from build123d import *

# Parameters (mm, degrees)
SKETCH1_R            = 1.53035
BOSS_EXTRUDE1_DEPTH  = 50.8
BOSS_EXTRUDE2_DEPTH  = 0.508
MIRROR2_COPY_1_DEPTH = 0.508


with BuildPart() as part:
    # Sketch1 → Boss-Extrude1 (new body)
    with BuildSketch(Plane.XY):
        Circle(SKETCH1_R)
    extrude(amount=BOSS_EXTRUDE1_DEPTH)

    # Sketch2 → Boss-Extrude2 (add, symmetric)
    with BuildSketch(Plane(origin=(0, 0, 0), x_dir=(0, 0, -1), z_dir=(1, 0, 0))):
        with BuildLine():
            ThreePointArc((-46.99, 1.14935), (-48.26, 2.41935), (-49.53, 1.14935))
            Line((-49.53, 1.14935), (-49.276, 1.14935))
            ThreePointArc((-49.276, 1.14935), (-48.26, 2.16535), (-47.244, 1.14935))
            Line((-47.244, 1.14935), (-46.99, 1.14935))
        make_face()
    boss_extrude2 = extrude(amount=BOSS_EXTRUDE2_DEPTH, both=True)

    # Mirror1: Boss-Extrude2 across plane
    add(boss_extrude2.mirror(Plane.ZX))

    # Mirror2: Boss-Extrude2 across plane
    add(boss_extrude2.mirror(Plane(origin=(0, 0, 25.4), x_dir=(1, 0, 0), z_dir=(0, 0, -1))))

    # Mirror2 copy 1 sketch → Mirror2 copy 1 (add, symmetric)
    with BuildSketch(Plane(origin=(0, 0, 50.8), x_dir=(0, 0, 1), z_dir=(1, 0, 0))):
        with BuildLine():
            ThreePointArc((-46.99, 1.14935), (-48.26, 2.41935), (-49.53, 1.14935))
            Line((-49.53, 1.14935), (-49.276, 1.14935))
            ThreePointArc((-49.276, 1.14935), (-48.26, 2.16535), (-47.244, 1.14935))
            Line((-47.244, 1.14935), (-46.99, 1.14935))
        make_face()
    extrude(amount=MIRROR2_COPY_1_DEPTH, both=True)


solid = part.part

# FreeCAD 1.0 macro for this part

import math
import FreeCAD as App
import Part
import Sketcher

V = App.Vector
Q = App.Units.Quantity

doc = App.newDocument("Part")
body = doc.addObject("PartDesign::Body", "Body")

# Sketch on XY plane
sketch1 = body.newObject("Sketcher::SketchObject", "Sketch")
sketch1.AttachmentSupport = (doc.getObject("XY_Plane"), [""])
sketch1.MapMode = "FlatFace"
sketch1.addGeometry(Part.Circle(V(0, 0, 0), V(0, 0, 1), 1.5), False)
sketch1.addConstraint([
    Sketcher.Constraint("Coincident", 0, 3, -1, 1),
    Sketcher.Constraint("Diameter", 0, Q("0.1205 in")),
])
pad1 = body.newObject("PartDesign::Pad", "Pad")
pad1.Profile = sketch1
pad1.Length = Q("2 in")

# Sketch on YZ plane
sketch2 = body.newObject("Sketcher::SketchObject", "Sketch001")
sketch2.AttachmentSupport = (doc.getObject("YZ_Plane"), [""])
sketch2.MapMode = "FlatFace"
sketch2.addGeometry([
    Part.ArcOfCircle(Part.Circle(V(1.15, 48.26, 0), V(0, 0, 1), 1.27), math.radians(-90), math.radians(90)),
    Part.LineSegment(V(1.15, 49.53, 0), V(1.15, 49.28, 0)),
    Part.ArcOfCircle(Part.Circle(V(1.15, 48.26, 0), V(0, 0, 1), 1.02), math.radians(-90), math.radians(90)),
    Part.LineSegment(V(1.15, 47.24, 0), V(1.15, 46.99, 0)),
], False)
sketch2.addConstraint([
    Sketcher.Constraint("Coincident", 0, 2, 1, 1),
    Sketcher.Constraint("Coincident", 1, 2, 2, 2),
    Sketcher.Constraint("Coincident", 2, 1, 3, 1),
    Sketcher.Constraint("Coincident", 3, 2, 0, 1),
    Sketcher.Constraint("Vertical", 1),
    Sketcher.Constraint("Vertical", 3),
    Sketcher.Constraint("Coincident", 2, 3, 0, 3),
    Sketcher.Constraint("Vertical", 2, 3, 0, 2),
    Sketcher.Constraint("Vertical", 1, 2, 2, 1),
    Sketcher.Constraint("Radius", 0, Q("0.05 in")),
    Sketcher.Constraint("Radius", 2, Q("0.04 in")),
    Sketcher.Constraint("DistanceY", -1, 1, 0, 3, Q("1.9 in")),
    Sketcher.Constraint("DistanceX", -1, 1, 0, 3, 1.14935),
])
pad2 = body.newObject("PartDesign::Pad", "Pad001")
pad2.Profile = sketch2
pad2.Length = Q("0.04 in")
pad2.Midplane = True
doc.recompute()

mirrored = body.newObject("PartDesign::Mirrored", "Mirrored")
mirrored.Originals = [pad2]
mirrored.MirrorPlane = (doc.getObject("XZ_Plane"), [""])
body.Tip = mirrored
doc.recompute()

datumplane = body.newObject("PartDesign::Plane", "DatumPlane")
datumplane.AttachmentSupport = (doc.getObject("XY_Plane"), [""])
datumplane.MapMode = "FlatFace"
datumplane.AttachmentOffset = App.Placement(V(0, 0, 1 * 25.4), App.Rotation())
mirrored2 = body.newObject("PartDesign::Mirrored", "Mirrored001")
mirrored2.Originals = [pad2]
mirrored2.MirrorPlane = (datumplane, [""])
body.Tip = mirrored2

# Sketch on YZ plane
sketch3 = body.newObject("Sketcher::SketchObject", "Sketch002")
sketch3.AttachmentSupport = (doc.getObject("YZ_Plane"), [""])
sketch3.MapMode = "FlatFace"
sketch3.addGeometry([
    Part.ArcOfCircle(Part.Circle(V(-1.15, 2.54, 0), V(0, 0, 1), 1.27), math.radians(90), math.radians(270)),
    Part.LineSegment(V(-1.15, 1.27, 0), V(-1.15, 1.52, 0)),
    Part.ArcOfCircle(Part.Circle(V(-1.15, 2.54, 0), V(0, 0, 1), 1.02), math.radians(90), math.radians(270)),
    Part.LineSegment(V(-1.15, 3.56, 0), V(-1.15, 3.81, 0)),
], False)
sketch3.addConstraint([
    Sketcher.Constraint("Coincident", 0, 2, 1, 1),
    Sketcher.Constraint("Coincident", 1, 2, 2, 2),
    Sketcher.Constraint("Coincident", 2, 1, 3, 1),
    Sketcher.Constraint("Coincident", 3, 2, 0, 1),
    Sketcher.Constraint("Vertical", 1),
    Sketcher.Constraint("Vertical", 3),
    Sketcher.Constraint("Coincident", 2, 3, 0, 3),
    Sketcher.Constraint("Vertical", 2, 3, 0, 2),
    Sketcher.Constraint("Vertical", 1, 2, 2, 1),
    Sketcher.Constraint("Radius", 0, Q("0.05 in")),
    Sketcher.Constraint("Radius", 2, Q("0.04 in")),
    Sketcher.Constraint("DistanceY", -1, 1, 0, 3, Q("0.1 in")),
    Sketcher.Constraint("DistanceX", 0, 3, -1, 1, 1.14935),
])
pad3 = body.newObject("PartDesign::Pad", "Pad002")
pad3.Profile = sketch3
pad3.Length = Q("0.04 in")
pad3.Midplane = True

doc.recompute()
